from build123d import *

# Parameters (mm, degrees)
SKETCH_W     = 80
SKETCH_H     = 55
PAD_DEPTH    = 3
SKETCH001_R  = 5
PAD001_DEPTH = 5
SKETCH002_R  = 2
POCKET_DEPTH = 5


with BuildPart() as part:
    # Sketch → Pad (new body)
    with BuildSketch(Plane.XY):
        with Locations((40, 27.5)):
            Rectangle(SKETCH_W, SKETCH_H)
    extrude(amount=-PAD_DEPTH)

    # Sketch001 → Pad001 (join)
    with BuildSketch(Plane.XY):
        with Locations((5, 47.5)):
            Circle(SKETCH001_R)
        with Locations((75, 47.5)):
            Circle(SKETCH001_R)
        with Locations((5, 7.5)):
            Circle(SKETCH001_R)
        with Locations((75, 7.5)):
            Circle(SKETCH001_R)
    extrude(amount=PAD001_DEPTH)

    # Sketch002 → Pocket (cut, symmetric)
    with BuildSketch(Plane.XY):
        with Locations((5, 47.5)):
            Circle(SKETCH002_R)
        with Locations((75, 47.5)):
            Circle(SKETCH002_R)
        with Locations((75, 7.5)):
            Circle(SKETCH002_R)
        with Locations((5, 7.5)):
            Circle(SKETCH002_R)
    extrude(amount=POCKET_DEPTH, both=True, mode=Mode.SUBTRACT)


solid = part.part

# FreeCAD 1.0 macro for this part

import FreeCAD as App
import Part
import Sketcher
from FreeCAD import Vector

doc = App.newDocument("Part")
body = doc.addObject("PartDesign::Body", "Body")

# Sketch on XY plane
sketch1 = body.newObject("Sketcher::SketchObject", "Sketch")
sketch1.AttachmentSupport = (doc.getObject("XY_Plane"), [""])
sketch1.MapMode = "FlatFace"
sketch1.addGeometry(Part.LineSegment(Vector(0, 55, 0), Vector(0, 0, 0)), False)
sketch1.addGeometry(Part.LineSegment(Vector(0, 0, 0), Vector(80, 0, 0)), False)
sketch1.addGeometry(Part.LineSegment(Vector(80, 0, 0), Vector(80, 55, 0)), False)
sketch1.addGeometry(Part.LineSegment(Vector(80, 55, 0), Vector(0, 55, 0)), False)
sketch1.addConstraint(Sketcher.Constraint("Coincident", 0, 2, 1, 1))
sketch1.addConstraint(Sketcher.Constraint("Coincident", 1, 2, 2, 1))
sketch1.addConstraint(Sketcher.Constraint("Coincident", 2, 2, 3, 1))
sketch1.addConstraint(Sketcher.Constraint("Coincident", 3, 2, 0, 1))
sketch1.addConstraint(Sketcher.Constraint("Vertical", 0))
sketch1.addConstraint(Sketcher.Constraint("Horizontal", 1))
sketch1.addConstraint(Sketcher.Constraint("Vertical", 2))
sketch1.addConstraint(Sketcher.Constraint("Horizontal", 3))
sketch1.addConstraint(Sketcher.Constraint("Coincident", 0, 2, -1, 1))
sketch1.addConstraint(Sketcher.Constraint("DistanceX", 1, 1, 1, 2, 80.0))
sketch1.addConstraint(Sketcher.Constraint("DistanceY", 0, 2, 0, 1, 55.0))
pad1 = body.newObject("PartDesign::Pad", "Pad")
pad1.Profile = sketch1
pad1.Length = 3
pad1.Reversed = True

# Sketch on XY plane
sketch2 = body.newObject("Sketcher::SketchObject", "Sketch001")
sketch2.AttachmentSupport = (doc.getObject("XY_Plane"), [""])
sketch2.MapMode = "FlatFace"
sketch2.addGeometry(Part.Circle(Vector(5, 47.5, 0), Vector(0, 0, 1), 5), False)
sketch2.addGeometry(Part.Circle(Vector(75, 47.5, 0), Vector(0, 0, 1), 5), False)
sketch2.addGeometry(Part.Circle(Vector(5, 7.5, 0), Vector(0, 0, 1), 5), False)
sketch2.addGeometry(Part.Circle(Vector(75, 7.5, 0), Vector(0, 0, 1), 5), False)
sketch2.addConstraint(Sketcher.Constraint("Equal", 0, 1))
sketch2.addConstraint(Sketcher.Constraint("Equal", 1, 2))
sketch2.addConstraint(Sketcher.Constraint("Equal", 2, 3))
sketch2.addConstraint(Sketcher.Constraint("Horizontal", 0, 3, 1, 3))
sketch2.addConstraint(Sketcher.Constraint("Horizontal", 2, 3, 3, 3))
sketch2.addConstraint(Sketcher.Constraint("Vertical", 0, 3, 2, 3))
sketch2.addConstraint(Sketcher.Constraint("Vertical", 1, 3, 3, 3))
sketch2.addConstraint(Sketcher.Constraint("Diameter", 0, 10.0))
sketch2.addConstraint(Sketcher.Constraint("DistanceX", -1, 1, 0, 3, 5.0))
sketch2.addConstraint(Sketcher.Constraint("DistanceX", -1, 1, 1, 3, 75.0))
sketch2.addConstraint(Sketcher.Constraint("DistanceY", 2, 3, 0, 3, 40.0))
sketch2.addConstraint(Sketcher.Constraint("DistanceY", -1, 1, 0, 3, 47.5))
pad2 = body.newObject("PartDesign::Pad", "Pad001")
pad2.Profile = sketch2
pad2.Length = 5

# Sketch on XY plane
sketch3 = body.newObject("Sketcher::SketchObject", "Sketch002")
sketch3.AttachmentSupport = (doc.getObject("XY_Plane"), [""])
sketch3.MapMode = "FlatFace"
sketch3.addGeometry(Part.Circle(Vector(5, 47.5, 0), Vector(0, 0, 1), 2), False)
sketch3.addGeometry(Part.Circle(Vector(75, 47.5, 0), Vector(0, 0, 1), 2), False)
sketch3.addGeometry(Part.Circle(Vector(75, 7.5, 0), Vector(0, 0, 1), 2), False)
sketch3.addGeometry(Part.Circle(Vector(5, 7.5, 0), Vector(0, 0, 1), 2), False)
sketch3.addConstraint(Sketcher.Constraint("Equal", 0, 1))
sketch3.addConstraint(Sketcher.Constraint("Equal", 1, 2))
sketch3.addConstraint(Sketcher.Constraint("Equal", 2, 3))
sketch3.addConstraint(Sketcher.Constraint("Horizontal", 0, 3, 1, 3))
sketch3.addConstraint(Sketcher.Constraint("Horizontal", 2, 3, 3, 3))
sketch3.addConstraint(Sketcher.Constraint("Vertical", 1, 3, 2, 3))
sketch3.addConstraint(Sketcher.Constraint("Vertical", 0, 3, 3, 3))
sketch3.addConstraint(Sketcher.Constraint("Diameter", 0, 4.0))
sketch3.addConstraint(Sketcher.Constraint("DistanceX", -1, 1, 0, 3, 5.0))
sketch3.addConstraint(Sketcher.Constraint("DistanceX", -1, 1, 1, 3, 75.0))
sketch3.addConstraint(Sketcher.Constraint("DistanceY", 2, 3, 1, 3, 40.0))
sketch3.addConstraint(Sketcher.Constraint("DistanceY", -1, 1, 0, 3, 47.5))
pocket1 = body.newObject("PartDesign::Pocket", "Pocket")
pocket1.Profile = sketch3
pocket1.Length = 10
pocket1.Midplane = True

doc.recompute()
